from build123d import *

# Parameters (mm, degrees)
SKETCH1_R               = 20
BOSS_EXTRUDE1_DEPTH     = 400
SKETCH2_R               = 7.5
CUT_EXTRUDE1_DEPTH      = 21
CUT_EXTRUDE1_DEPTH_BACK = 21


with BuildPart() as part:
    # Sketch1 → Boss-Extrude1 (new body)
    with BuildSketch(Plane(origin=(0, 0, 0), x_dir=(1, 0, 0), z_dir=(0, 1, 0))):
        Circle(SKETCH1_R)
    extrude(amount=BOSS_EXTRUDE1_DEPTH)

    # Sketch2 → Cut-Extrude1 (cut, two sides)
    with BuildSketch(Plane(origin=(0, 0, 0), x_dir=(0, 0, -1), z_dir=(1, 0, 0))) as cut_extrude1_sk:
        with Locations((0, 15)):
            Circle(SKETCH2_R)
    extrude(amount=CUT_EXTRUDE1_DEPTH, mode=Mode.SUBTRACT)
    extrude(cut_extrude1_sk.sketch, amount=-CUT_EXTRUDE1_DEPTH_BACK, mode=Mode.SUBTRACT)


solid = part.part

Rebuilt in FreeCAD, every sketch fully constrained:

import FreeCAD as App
import Part
import Sketcher

V = App.Vector
Q = App.Units.Quantity

doc = App.newDocument("Part")
body = doc.addObject("PartDesign::Body", "Body")

# Sketch on XZ plane
sketch1 = body.newObject("Sketcher::SketchObject", "Sketch")
sketch1.AttachmentSupport = (doc.getObject("XZ_Plane"), [""])
sketch1.MapMode = "FlatFace"
sketch1.addGeometry(Part.Circle(V(0, 0, 0), V(0, 0, 1), 20), False)
sketch1.addConstraint([
    Sketcher.Constraint("Coincident", 0, 3, -1, 1),
    Sketcher.Constraint("Diameter", 0, Q("40 mm")),
])
pad1 = body.newObject("PartDesign::Pad", "Pad")
pad1.Profile = sketch1
pad1.Length = 400
pad1.Reversed = True

# Sketch on YZ plane
sketch2 = body.newObject("Sketcher::SketchObject", "Sketch001")
sketch2.AttachmentSupport = (doc.getObject("YZ_Plane"), [""])
sketch2.MapMode = "FlatFace"
sketch2.addGeometry(Part.Circle(V(15, 0, 0), V(0, 0, 1), 8), False)
sketch2.addConstraint([
    Sketcher.Constraint("PointOnObject", 0, 3, -1),
    Sketcher.Constraint("Diameter", 0, Q("15 mm")),
    Sketcher.Constraint("DistanceX", -1, 1, 0, 3, Q("15 mm")),
])
pocket1 = body.newObject("PartDesign::Pocket", "Pocket")
pocket1.Profile = sketch2
pocket1.Type = "ThroughAll"
pocket1.Midplane = True

doc.recompute()
